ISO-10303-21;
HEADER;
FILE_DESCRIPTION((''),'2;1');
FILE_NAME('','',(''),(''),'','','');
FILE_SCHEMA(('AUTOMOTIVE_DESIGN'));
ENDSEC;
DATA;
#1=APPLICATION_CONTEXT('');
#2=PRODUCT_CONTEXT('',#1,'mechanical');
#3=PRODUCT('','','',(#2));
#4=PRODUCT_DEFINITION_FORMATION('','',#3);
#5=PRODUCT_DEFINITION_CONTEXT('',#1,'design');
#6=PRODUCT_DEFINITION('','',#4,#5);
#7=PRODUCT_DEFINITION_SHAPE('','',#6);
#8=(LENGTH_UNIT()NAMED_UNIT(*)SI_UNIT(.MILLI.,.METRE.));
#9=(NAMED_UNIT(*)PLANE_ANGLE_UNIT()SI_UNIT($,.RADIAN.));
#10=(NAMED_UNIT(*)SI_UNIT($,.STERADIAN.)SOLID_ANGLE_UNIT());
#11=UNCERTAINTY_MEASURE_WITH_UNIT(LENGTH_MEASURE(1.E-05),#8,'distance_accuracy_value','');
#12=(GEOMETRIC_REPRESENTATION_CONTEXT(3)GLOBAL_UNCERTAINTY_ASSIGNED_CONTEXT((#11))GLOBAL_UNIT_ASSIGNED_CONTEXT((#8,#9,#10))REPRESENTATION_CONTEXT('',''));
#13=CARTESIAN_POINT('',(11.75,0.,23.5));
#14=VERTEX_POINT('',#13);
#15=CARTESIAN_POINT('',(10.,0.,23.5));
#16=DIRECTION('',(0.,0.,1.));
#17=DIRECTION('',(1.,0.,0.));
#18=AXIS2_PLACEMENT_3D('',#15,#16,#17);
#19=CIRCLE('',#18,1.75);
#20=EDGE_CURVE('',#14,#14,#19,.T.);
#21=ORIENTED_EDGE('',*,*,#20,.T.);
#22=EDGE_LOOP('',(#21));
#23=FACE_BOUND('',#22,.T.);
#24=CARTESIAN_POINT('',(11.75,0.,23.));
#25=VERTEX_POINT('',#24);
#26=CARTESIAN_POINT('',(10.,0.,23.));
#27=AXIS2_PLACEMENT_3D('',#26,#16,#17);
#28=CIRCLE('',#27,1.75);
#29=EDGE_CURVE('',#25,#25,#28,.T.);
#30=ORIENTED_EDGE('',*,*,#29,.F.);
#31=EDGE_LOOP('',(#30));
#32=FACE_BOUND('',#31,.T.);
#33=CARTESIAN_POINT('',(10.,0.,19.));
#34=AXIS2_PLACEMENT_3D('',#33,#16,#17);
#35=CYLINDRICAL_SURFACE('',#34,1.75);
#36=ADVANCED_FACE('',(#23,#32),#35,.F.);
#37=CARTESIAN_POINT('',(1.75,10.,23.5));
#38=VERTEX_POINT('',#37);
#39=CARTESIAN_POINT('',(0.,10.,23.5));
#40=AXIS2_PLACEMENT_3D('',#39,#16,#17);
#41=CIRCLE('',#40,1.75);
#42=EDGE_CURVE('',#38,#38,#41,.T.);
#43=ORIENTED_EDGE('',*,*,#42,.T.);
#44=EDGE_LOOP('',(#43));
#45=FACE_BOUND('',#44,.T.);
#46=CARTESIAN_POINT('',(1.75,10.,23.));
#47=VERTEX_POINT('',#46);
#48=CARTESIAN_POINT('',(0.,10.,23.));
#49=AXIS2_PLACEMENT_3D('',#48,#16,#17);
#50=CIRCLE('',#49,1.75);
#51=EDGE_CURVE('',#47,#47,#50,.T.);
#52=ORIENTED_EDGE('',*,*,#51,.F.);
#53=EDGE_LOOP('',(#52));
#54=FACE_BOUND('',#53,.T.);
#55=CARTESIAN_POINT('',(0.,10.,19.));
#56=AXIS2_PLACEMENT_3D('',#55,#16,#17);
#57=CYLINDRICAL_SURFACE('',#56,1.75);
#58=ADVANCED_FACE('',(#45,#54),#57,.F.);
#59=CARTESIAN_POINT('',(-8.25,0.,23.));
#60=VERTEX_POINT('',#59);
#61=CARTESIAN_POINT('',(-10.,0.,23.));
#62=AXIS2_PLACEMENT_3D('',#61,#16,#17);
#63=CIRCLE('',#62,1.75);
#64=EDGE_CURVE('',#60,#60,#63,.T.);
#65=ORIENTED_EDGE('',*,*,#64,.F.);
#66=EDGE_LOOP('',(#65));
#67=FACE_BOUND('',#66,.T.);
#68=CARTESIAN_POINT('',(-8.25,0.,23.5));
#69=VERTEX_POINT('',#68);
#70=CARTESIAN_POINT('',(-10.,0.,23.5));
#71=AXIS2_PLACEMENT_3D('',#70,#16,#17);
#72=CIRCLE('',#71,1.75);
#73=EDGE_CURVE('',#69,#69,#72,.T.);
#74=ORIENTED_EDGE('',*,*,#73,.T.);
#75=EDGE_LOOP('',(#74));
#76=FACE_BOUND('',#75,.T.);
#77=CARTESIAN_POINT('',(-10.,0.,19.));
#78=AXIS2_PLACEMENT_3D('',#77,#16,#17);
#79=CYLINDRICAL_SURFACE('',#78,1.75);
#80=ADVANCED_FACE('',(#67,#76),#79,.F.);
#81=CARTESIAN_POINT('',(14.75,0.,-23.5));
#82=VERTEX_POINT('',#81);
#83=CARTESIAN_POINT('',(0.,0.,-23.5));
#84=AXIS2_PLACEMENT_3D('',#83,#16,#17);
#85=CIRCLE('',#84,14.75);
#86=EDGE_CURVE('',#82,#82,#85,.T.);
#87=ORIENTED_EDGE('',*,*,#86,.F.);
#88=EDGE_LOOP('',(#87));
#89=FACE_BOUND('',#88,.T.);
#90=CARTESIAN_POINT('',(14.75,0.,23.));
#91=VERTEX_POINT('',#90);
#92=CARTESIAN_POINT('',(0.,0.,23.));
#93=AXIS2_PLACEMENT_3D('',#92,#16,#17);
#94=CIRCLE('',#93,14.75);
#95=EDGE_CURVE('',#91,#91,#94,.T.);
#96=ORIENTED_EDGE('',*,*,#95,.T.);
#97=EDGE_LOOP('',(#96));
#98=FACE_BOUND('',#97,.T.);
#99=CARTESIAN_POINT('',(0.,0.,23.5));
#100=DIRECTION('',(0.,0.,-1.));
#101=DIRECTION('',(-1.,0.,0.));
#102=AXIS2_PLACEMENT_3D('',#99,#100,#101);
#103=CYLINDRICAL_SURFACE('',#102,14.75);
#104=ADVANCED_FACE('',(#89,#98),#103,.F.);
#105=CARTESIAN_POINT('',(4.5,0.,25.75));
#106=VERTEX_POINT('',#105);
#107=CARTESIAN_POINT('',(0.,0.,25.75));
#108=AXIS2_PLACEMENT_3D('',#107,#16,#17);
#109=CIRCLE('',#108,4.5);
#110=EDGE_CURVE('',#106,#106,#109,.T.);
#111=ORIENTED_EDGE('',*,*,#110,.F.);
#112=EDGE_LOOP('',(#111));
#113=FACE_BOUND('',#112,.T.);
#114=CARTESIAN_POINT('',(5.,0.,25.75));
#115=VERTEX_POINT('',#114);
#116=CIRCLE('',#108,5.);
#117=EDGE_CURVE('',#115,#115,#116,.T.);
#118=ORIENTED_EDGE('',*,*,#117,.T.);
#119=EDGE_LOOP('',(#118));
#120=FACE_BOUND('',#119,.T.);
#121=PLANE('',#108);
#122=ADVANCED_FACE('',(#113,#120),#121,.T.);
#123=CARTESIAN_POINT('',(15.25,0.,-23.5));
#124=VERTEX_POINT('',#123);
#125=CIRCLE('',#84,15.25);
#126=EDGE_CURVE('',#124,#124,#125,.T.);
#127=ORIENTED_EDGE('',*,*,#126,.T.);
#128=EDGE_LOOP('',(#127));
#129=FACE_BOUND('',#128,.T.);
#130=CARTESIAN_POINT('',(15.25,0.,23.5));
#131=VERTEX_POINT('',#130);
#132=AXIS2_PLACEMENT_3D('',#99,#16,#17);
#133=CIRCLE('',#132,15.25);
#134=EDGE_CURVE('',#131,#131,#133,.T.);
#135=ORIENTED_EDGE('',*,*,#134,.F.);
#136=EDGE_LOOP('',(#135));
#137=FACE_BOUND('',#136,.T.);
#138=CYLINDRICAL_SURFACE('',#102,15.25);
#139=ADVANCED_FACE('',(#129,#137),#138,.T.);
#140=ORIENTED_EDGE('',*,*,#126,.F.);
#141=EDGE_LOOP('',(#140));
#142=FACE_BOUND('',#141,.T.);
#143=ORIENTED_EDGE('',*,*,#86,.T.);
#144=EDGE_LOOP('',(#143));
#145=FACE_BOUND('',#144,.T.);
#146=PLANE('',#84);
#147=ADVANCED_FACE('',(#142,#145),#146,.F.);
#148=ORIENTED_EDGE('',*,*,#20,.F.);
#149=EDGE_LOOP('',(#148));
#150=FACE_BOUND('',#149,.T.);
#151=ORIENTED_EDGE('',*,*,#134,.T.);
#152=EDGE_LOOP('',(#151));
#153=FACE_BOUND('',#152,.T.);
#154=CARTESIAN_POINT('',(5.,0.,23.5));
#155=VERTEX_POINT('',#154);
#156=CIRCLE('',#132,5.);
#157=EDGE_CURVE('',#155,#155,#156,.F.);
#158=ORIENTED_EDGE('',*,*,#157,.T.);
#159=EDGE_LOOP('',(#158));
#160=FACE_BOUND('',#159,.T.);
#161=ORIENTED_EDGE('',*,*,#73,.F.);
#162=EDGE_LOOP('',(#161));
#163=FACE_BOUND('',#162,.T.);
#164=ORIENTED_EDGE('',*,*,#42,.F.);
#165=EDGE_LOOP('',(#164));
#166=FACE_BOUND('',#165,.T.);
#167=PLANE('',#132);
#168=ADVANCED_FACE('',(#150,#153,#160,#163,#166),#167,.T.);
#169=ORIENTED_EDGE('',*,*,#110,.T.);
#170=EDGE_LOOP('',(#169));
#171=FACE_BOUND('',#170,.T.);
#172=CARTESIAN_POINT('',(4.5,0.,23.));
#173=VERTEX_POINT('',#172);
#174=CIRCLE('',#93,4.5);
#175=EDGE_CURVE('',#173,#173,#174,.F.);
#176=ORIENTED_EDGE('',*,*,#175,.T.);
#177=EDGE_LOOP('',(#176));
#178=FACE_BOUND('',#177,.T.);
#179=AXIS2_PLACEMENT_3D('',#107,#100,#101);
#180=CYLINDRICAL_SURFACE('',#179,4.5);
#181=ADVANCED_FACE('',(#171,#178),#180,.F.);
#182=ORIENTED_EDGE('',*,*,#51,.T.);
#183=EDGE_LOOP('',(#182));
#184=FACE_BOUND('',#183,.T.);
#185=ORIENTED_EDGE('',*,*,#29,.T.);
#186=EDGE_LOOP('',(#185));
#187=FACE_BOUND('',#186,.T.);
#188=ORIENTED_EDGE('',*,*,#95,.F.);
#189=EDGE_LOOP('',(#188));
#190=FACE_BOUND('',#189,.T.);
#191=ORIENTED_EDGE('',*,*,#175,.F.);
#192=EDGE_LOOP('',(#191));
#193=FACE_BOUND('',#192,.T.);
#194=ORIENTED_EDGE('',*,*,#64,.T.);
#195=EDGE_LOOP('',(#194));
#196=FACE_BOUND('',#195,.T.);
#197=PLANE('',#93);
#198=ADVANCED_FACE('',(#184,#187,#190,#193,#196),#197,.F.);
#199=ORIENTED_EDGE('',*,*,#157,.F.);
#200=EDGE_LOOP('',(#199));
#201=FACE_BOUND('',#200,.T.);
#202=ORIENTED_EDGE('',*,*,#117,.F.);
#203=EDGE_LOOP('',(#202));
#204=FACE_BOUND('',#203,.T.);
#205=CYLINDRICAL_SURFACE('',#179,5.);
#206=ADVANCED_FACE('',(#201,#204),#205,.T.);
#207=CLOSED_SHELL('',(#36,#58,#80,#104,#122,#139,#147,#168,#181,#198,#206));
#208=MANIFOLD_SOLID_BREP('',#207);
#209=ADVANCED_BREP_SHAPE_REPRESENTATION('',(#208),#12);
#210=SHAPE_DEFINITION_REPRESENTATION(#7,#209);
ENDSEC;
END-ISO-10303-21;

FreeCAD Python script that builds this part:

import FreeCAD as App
import Part
import Sketcher

V = App.Vector


def faces_at(feature, points):
    """Names of the faces that lie closest to the given points."""
    faces = feature.Shape.Faces
    near = lambda p: min(range(len(faces)), key=lambda i: faces[i].distToShape(Part.Vertex(*p))[0])
    return sorted({f"Face{near(p) + 1}" for p in points})

doc = App.newDocument("Part")
body = doc.addObject("PartDesign::Body", "Body")

# Sketch on XY plane
sketch1 = body.newObject("Sketcher::SketchObject", "Sketch")
sketch1.AttachmentSupport = (doc.getObject("XY_Plane"), [""])
sketch1.MapMode = "FlatFace"
sketch1.addGeometry(Part.Circle(V(0, 0, 0), V(0, 0, 1), 15.25), False)
sketch1.addConstraint(Sketcher.Constraint("Coincident", 0, 3, -1, 1))
sketch1.addConstraint(Sketcher.Constraint("Diameter", 0, 30.5))
pad1 = body.newObject("PartDesign::Pad", "Pad")
pad1.Profile = sketch1
pad1.Length = 47
pad1.Midplane = True

# Sketch on XY plane
sketch2 = body.newObject("Sketcher::SketchObject", "Sketch001")
sketch2.AttachmentSupport = (doc.getObject("XY_Plane"), [""])
sketch2.MapMode = "FlatFace"
sketch2.AttachmentOffset = App.Placement(V(0, 0, 23.5), App.Rotation())
sketch2.addGeometry(Part.Circle(V(0, 0, 0), V(0, 0, 1), 5), False)
sketch2.addConstraint(Sketcher.Constraint("Coincident", 0, 3, -1, 1))
sketch2.addConstraint(Sketcher.Constraint("Diameter", 0, 10.0))
pad2 = body.newObject("PartDesign::Pad", "Pad001")
pad2.Profile = sketch2
pad2.Length = 4.5
pad2.Midplane = True
doc.recompute()

thickness = body.newObject("PartDesign::Thickness", "Thickness")
thickness.Base = (pad2, faces_at(pad2, [(0, 0, -23.5), (0, 0, 25.75)]))
thickness.Value = 0.5
thickness.Reversed = True
thickness.Join = "Intersection"

# Sketch on XY plane
sketch3 = body.newObject("Sketcher::SketchObject", "Sketch002")
sketch3.AttachmentSupport = (doc.getObject("XY_Plane"), [""])
sketch3.MapMode = "FlatFace"
sketch3.AttachmentOffset = App.Placement(V(0, 0, 23.5), App.Rotation())
sketch3.addGeometry(Part.Circle(V(-10, 0, 0), V(0, 0, 1), 1.75), False)
sketch3.addGeometry(Part.Circle(V(0, 10, 0), V(0, 0, 1), 1.75), False)
sketch3.addGeometry(Part.Circle(V(10, 0, 0), V(0, 0, 1), 1.75), False)
sketch3.addConstraint(Sketcher.Constraint("Equal", 0, 1))
sketch3.addConstraint(Sketcher.Constraint("Equal", 1, 2))
sketch3.addConstraint(Sketcher.Constraint("Symmetric", 0, 3, 2, 3, -1, 1))
sketch3.addConstraint(Sketcher.Constraint("PointOnObject", 0, 3, -1))
sketch3.addConstraint(Sketcher.Constraint("PointOnObject", 1, 3, -2))
sketch3.addConstraint(Sketcher.Constraint("Diameter", 0, 3.5))
sketch3.addConstraint(Sketcher.Constraint("DistanceX", 0, 3, -1, 1, 10.0))
sketch3.addConstraint(Sketcher.Constraint("DistanceY", -1, 1, 1, 3, 10.0))
pocket1 = body.newObject("PartDesign::Pocket", "Pocket")
pocket1.Profile = sketch3
pocket1.Length = 4.5

doc.recompute()
